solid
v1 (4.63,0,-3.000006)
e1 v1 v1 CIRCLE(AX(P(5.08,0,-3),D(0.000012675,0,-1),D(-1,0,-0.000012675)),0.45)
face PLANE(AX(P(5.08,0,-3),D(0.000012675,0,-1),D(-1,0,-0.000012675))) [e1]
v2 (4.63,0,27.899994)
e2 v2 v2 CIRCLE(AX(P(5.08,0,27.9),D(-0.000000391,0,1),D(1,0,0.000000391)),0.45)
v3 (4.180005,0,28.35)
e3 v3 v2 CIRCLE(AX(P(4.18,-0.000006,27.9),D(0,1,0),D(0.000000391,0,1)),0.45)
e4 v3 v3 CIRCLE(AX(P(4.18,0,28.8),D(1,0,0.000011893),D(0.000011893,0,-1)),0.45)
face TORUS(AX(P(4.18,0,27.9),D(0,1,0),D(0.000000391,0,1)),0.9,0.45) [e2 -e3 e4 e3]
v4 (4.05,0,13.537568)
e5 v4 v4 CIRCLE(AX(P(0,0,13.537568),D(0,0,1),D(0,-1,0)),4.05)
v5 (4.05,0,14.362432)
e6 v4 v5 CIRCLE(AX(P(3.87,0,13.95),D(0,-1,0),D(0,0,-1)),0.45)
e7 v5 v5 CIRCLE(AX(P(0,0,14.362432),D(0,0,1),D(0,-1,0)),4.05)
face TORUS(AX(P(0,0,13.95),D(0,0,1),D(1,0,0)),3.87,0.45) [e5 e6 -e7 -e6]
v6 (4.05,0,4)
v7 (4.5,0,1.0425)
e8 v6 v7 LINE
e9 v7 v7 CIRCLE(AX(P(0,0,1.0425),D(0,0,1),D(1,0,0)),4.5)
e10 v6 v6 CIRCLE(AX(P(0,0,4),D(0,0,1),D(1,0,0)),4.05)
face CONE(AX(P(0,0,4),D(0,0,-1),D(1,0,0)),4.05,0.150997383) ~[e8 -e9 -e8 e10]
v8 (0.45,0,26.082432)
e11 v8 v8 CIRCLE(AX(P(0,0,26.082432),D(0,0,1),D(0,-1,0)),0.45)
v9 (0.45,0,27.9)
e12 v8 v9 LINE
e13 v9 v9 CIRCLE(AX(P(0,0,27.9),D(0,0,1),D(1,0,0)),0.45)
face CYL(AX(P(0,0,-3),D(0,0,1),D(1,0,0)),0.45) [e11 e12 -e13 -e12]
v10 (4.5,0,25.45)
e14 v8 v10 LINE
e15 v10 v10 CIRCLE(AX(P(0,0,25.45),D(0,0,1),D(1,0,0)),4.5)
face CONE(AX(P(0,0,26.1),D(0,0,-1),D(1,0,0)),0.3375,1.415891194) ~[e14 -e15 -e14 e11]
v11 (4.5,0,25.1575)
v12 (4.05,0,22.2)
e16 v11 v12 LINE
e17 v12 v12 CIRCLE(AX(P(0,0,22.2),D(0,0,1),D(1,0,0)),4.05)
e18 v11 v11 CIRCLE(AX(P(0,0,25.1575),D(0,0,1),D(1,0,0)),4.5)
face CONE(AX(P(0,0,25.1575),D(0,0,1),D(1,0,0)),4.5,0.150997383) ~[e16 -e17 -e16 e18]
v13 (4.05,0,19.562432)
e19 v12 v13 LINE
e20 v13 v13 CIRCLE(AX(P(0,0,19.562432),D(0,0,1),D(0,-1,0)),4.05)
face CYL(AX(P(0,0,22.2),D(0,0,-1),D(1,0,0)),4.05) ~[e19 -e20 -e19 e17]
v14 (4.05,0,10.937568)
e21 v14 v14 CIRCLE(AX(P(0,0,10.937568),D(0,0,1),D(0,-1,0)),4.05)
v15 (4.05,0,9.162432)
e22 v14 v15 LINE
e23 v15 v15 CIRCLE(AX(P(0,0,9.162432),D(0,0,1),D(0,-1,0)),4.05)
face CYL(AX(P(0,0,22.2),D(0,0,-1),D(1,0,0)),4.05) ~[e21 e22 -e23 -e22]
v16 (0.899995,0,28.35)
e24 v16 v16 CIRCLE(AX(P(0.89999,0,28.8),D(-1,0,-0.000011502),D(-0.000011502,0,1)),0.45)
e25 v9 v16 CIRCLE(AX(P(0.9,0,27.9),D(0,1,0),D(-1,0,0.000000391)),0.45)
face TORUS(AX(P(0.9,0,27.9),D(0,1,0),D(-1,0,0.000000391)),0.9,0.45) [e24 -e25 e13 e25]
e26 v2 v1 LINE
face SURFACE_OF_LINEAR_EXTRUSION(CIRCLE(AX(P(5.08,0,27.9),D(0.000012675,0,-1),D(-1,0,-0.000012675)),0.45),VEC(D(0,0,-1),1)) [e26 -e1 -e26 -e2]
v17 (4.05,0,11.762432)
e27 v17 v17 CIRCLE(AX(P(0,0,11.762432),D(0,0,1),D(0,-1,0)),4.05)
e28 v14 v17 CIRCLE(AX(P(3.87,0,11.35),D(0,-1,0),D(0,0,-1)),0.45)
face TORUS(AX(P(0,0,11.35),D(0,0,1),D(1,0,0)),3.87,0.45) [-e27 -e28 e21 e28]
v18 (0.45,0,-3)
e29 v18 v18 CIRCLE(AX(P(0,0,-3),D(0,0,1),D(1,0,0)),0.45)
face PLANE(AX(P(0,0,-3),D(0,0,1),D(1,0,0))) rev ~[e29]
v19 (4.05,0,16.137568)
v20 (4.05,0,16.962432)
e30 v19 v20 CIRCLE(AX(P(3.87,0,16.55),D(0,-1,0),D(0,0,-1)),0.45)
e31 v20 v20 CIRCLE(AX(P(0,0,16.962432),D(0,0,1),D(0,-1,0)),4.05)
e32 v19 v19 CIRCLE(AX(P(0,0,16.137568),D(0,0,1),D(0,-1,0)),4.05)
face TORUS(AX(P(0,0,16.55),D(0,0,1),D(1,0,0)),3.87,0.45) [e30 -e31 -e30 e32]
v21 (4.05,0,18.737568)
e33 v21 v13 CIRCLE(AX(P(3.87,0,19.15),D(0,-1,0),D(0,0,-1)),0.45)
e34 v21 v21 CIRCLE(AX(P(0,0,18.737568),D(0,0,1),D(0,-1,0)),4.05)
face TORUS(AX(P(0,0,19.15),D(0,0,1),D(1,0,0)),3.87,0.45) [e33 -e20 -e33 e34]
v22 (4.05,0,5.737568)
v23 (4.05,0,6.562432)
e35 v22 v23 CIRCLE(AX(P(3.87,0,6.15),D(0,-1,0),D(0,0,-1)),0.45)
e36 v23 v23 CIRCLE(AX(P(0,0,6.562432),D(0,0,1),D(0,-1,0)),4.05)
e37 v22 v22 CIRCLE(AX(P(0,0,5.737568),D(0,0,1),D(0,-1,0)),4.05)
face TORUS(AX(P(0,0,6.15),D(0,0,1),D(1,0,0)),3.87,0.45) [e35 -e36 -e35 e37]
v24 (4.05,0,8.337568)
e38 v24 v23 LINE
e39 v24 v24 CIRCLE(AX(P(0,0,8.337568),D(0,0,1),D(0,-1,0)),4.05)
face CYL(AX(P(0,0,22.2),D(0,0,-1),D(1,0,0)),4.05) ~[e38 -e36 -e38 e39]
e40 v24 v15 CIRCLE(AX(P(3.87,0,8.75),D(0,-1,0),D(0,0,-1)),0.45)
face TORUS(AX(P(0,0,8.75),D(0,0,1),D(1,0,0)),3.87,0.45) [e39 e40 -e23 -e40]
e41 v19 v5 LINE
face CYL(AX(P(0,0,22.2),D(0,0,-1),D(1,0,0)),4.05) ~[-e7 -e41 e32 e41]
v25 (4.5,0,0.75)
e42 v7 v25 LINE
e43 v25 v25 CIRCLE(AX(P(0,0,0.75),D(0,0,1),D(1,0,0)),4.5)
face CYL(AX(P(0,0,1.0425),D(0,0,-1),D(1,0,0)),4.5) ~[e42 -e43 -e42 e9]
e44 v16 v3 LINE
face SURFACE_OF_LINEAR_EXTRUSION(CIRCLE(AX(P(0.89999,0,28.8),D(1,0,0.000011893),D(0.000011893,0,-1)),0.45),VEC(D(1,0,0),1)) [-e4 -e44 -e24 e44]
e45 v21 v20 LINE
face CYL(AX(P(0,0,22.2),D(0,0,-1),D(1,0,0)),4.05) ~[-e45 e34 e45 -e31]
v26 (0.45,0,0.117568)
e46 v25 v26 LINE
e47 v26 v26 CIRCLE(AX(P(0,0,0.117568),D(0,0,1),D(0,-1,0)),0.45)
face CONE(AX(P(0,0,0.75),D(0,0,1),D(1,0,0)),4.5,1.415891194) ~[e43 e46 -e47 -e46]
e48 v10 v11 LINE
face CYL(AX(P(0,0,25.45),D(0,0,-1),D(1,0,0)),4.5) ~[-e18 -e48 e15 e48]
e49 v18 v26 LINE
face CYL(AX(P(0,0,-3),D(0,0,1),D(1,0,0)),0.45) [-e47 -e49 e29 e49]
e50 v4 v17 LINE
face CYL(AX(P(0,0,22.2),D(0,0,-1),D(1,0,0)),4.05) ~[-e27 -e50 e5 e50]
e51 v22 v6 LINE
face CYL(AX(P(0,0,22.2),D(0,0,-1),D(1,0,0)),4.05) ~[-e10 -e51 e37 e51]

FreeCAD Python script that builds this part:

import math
import FreeCAD as App
import Part
import Sketcher

doc = App.newDocument("Part")
body = doc.addObject("PartDesign::Body", "Body")

# Sketch on XZ plane
sketch1 = body.newObject("Sketcher::SketchObject", "Sketch")
sketch1.AttachmentSupport = (doc.getObject("XZ_Plane"), [""])
sketch1.MapMode = "FlatFace"
sketch1.addGeometry(Part.LineSegment(App.Vector(0, 26.1, 0), App.Vector(0, 0.1, 0)), False)
sketch1.addGeometry(Part.LineSegment(App.Vector(0, 0.1, 0), App.Vector(0.34, 0.1, 0)), False)
sketch1.addGeometry(Part.LineSegment(App.Vector(0.34, 0.1, 0), App.Vector(4.5, 0.75, 0)), False)
sketch1.addGeometry(Part.LineSegment(App.Vector(4.5, 0.75, 0), App.Vector(4.5, 1.04, 0)), False)
sketch1.addGeometry(Part.LineSegment(App.Vector(4.5, 1.04, 0), App.Vector(4.05, 4, 0)), False)
sketch1.addGeometry(Part.LineSegment(App.Vector(4.05, 4, 0), App.Vector(4.05, 22.2, 0)), False)
sketch1.addGeometry(Part.LineSegment(App.Vector(4.05, 22.2, 0), App.Vector(4.5, 25.16, 0)), False)
sketch1.addGeometry(Part.LineSegment(App.Vector(4.5, 25.16, 0), App.Vector(4.5, 25.45, 0)), False)
sketch1.addGeometry(Part.LineSegment(App.Vector(4.5, 25.45, 0), App.Vector(0.34, 26.1, 0)), False)
sketch1.addGeometry(Part.LineSegment(App.Vector(0.34, 26.1, 0), App.Vector(0, 26.1, 0)), False)
sketch1.addConstraint(Sketcher.Constraint("Coincident", 0, 2, 1, 1))
sketch1.addConstraint(Sketcher.Constraint("Coincident", 1, 2, 2, 1))
sketch1.addConstraint(Sketcher.Constraint("Coincident", 2, 2, 3, 1))
sketch1.addConstraint(Sketcher.Constraint("Coincident", 3, 2, 4, 1))
sketch1.addConstraint(Sketcher.Constraint("Coincident", 4, 2, 5, 1))
sketch1.addConstraint(Sketcher.Constraint("Coincident", 5, 2, 6, 1))
sketch1.addConstraint(Sketcher.Constraint("Coincident", 6, 2, 7, 1))
sketch1.addConstraint(Sketcher.Constraint("Coincident", 7, 2, 8, 1))
sketch1.addConstraint(Sketcher.Constraint("Coincident", 8, 2, 9, 1))
sketch1.addConstraint(Sketcher.Constraint("Coincident", 9, 2, 0, 1))
sketch1.addConstraint(Sketcher.Constraint("Vertical", 0))
sketch1.addConstraint(Sketcher.Constraint("Horizontal", 1))
sketch1.addConstraint(Sketcher.Constraint("Vertical", 3))
sketch1.addConstraint(Sketcher.Constraint("Vertical", 5))
sketch1.addConstraint(Sketcher.Constraint("Vertical", 7))
sketch1.addConstraint(Sketcher.Constraint("Horizontal", 9))
sketch1.addConstraint(Sketcher.Constraint("PointOnObject", 0, 2, -2))
sketch1.addConstraint(Sketcher.Constraint("Vertical", 3, 2, 6, 2))
sketch1.addConstraint(Sketcher.Constraint("Vertical", 1, 2, 8, 2))
sketch1.addConstraint(Sketcher.Constraint("Equal", 3, 7))
sketch1.addConstraint(Sketcher.Constraint("Equal", 4, 6))
sketch1.addConstraint(Sketcher.Constraint("Equal", 2, 8))
sketch1.addConstraint(Sketcher.Constraint("DistanceY", 0, 2, 0, 1, 26.0))
sketch1.addConstraint(Sketcher.Constraint("DistanceY", 5, 1, 5, 2, 18.2))
sketch1.addConstraint(Sketcher.Constraint("DistanceY", -1, 1, 4, 2, 4.0))
sketch1.addConstraint(Sketcher.Constraint("DistanceX", -1, 1, 2, 2, 4.5))
sketch1.addConstraint(Sketcher.Constraint("DistanceY", 2, 2, 7, 2, 24.7))
sketch1.addConstraint(Sketcher.Constraint("DistanceX", -1, 1, 4, 2, 4.05))
sketch1.addConstraint(Sketcher.Constraint("DistanceX", 1, 1, 1, 2, 0.3375))
sketch1.addConstraint(Sketcher.Constraint("DistanceY", 3, 1, 3, 2, 0.2925))
revolution = body.newObject("PartDesign::Revolution", "Revolution")
revolution.Profile = sketch1
revolution.ReferenceAxis = (sketch1, ["V_Axis"])
revolution.Angle = 360
body2 = doc.addObject("PartDesign::Body", "Body001")

# Sketch on XY plane
sketch2 = body2.newObject("Sketcher::SketchObject", "Sketch001")
sketch2.AttachmentSupport = (doc.getObject("XY_Plane001"), [""])
sketch2.MapMode = "FlatFace"
sketch2.AttachmentOffset = App.Placement(App.Vector(0, 0, -2), App.Rotation())
sketch2.addGeometry(Part.Circle(App.Vector(0, 0, 0), App.Vector(0, 0, 1), 0.45), False)
sketch2.addConstraint(Sketcher.Constraint("Coincident", 0, 3, -1, 1))
sketch2.addConstraint(Sketcher.Constraint("Diameter", 0, 0.9))

# Sketch on XZ plane
sketch3 = body2.newObject("Sketcher::SketchObject", "Sketch002")
sketch3.AttachmentSupport = (doc.getObject("XZ_Plane001"), [""])
sketch3.MapMode = "FlatFace"
sketch3.addGeometry(Part.LineSegment(App.Vector(0, -3, 0), App.Vector(0, 27.9, 0)), False)
sketch3.addGeometry(Part.ArcOfCircle(Part.Circle(App.Vector(0.9, 27.9, 0), App.Vector(0, 0, 1), 0.9), math.radians(90), math.radians(180)), False)
sketch3.addGeometry(Part.LineSegment(App.Vector(0.9, 28.8, 0), App.Vector(4.2, 28.8, 0)), False)
sketch3.addGeometry(Part.ArcOfCircle(Part.Circle(App.Vector(4.2, 27.9, 0), App.Vector(0, 0, 1), 0.9), math.radians(0), math.radians(90)), False)
sketch3.addGeometry(Part.LineSegment(App.Vector(5.1, 27.9, 0), App.Vector(5.1, -3, 0)), False)
sketch3.addConstraint(Sketcher.Constraint("Tangent", 0, 2, 1, 2))
sketch3.addConstraint(Sketcher.Constraint("Coincident", 1, 1, 2, 1))
sketch3.addConstraint(Sketcher.Constraint("Tangent", 2, 2, 3, 2))
sketch3.addConstraint(Sketcher.Constraint("Tangent", 3, 1, 4, 1))
sketch3.addConstraint(Sketcher.Constraint("Vertical", 0))
sketch3.addConstraint(Sketcher.Constraint("Horizontal", 2))
sketch3.addConstraint(Sketcher.Constraint("Vertical", 4))
sketch3.addConstraint(Sketcher.Constraint("Equal", 1, 3))
sketch3.addConstraint(Sketcher.Constraint("PointOnObject", 0, 1, -2))
sketch3.addConstraint(Sketcher.Constraint("Horizontal", 0, 1, 4, 2))
sketch3.addConstraint(Sketcher.Constraint("Radius", 1, 0.9))
sketch3.addConstraint(Sketcher.Constraint("DistanceY", 0, 1, 0, 2, 30.9))
sketch3.addConstraint(Sketcher.Constraint("DistanceY", 0, 1, -1, 1, 3.0))
sketch3.addConstraint(Sketcher.Constraint("DistanceX", -1, 1, 3, 3, 4.18))
sketch3.addConstraint(Sketcher.Constraint("DistanceX", 2, 1, 2, 2, 3.28001))
doc.recompute()

additivepipe = body2.newObject("PartDesign::AdditivePipe", "AdditivePipe")
additivepipe.Profile = sketch2
additivepipe.Spine = (sketch3, ["Edge1", "Edge2", "Edge3", "Edge4", "Edge5"])
body3 = doc.addObject("PartDesign::Body", "Body002")

# Sketch on XZ plane
sketch4 = body3.newObject("Sketcher::SketchObject", "Sketch003")
sketch4.AttachmentSupport = (doc.getObject("XZ_Plane002"), [""])
sketch4.MapMode = "FlatFace"
sketch4.addGeometry(Part.LineSegment(App.Vector(3.6, 21.3, 0), App.Vector(3.6, 4, 0)), False)
sketch4.addGeometry(Part.LineSegment(App.Vector(3.6, 4, 0), App.Vector(3.87, 4, 0)), False)
sketch4.addGeometry(Part.LineSegment(App.Vector(3.87, 4, 0), App.Vector(3.87, 5.7, 0)), False)
sketch4.addGeometry(Part.ArcOfCircle(Part.Circle(App.Vector(3.87, 6.15, 0), App.Vector(0, 0, 1), 0.45), math.radians(-90), math.radians(90)), False)
sketch4.addGeometry(Part.LineSegment(App.Vector(3.87, 6.6, 0), App.Vector(3.87, 8.3, 0)), False)
sketch4.addGeometry(Part.ArcOfCircle(Part.Circle(App.Vector(3.87, 8.75, 0), App.Vector(0, 0, 1), 0.45), math.radians(-90), math.radians(90)), False)
sketch4.addGeometry(Part.LineSegment(App.Vector(3.87, 9.2, 0), App.Vector(3.87, 10.9, 0)), False)
sketch4.addGeometry(Part.ArcOfCircle(Part.Circle(App.Vector(3.87, 11.35, 0), App.Vector(0, 0, 1), 0.45), math.radians(-90), math.radians(90)), False)
sketch4.addGeometry(Part.LineSegment(App.Vector(3.87, 11.8, 0), App.Vector(3.87, 13.5, 0)), False)
sketch4.addGeometry(Part.ArcOfCircle(Part.Circle(App.Vector(3.87, 13.95, 0), App.Vector(0, 0, 1), 0.45), math.radians(-90), math.radians(90)), False)
sketch4.addGeometry(Part.LineSegment(App.Vector(3.87, 14.4, 0), App.Vector(3.87, 16.1, 0)), False)
sketch4.addGeometry(Part.ArcOfCircle(Part.Circle(App.Vector(3.87, 16.55, 0), App.Vector(0, 0, 1), 0.45), math.radians(-90), math.radians(90)), False)
sketch4.addGeometry(Part.LineSegment(App.Vector(3.87, 17, 0), App.Vector(3.87, 18.7, 0)), False)
sketch4.addGeometry(Part.ArcOfCircle(Part.Circle(App.Vector(3.87, 19.15, 0), App.Vector(0, 0, 1), 0.45), math.radians(-90), math.radians(90)), False)
sketch4.addGeometry(Part.LineSegment(App.Vector(3.87, 19.6, 0), App.Vector(3.87, 21.3, 0)), False)
sketch4.addGeometry(Part.LineSegment(App.Vector(3.87, 21.3, 0), App.Vector(3.6, 21.3, 0)), False)
sketch4.addConstraint(Sketcher.Constraint("Coincident", 0, 2, 1, 1))
sketch4.addConstraint(Sketcher.Constraint("Coincident", 1, 2, 2, 1))
sketch4.addConstraint(Sketcher.Constraint("Coincident", 2, 2, 3, 1))
sketch4.addConstraint(Sketcher.Constraint("Coincident", 3, 2, 4, 1))
sketch4.addConstraint(Sketcher.Constraint("Coincident", 4, 2, 5, 1))
sketch4.addConstraint(Sketcher.Constraint("Coincident", 5, 2, 6, 1))
sketch4.addConstraint(Sketcher.Constraint("Coincident", 6, 2, 7, 1))
sketch4.addConstraint(Sketcher.Constraint("Coincident", 7, 2, 8, 1))
sketch4.addConstraint(Sketcher.Constraint("Coincident", 8, 2, 9, 1))
sketch4.addConstraint(Sketcher.Constraint("Coincident", 9, 2, 10, 1))
sketch4.addConstraint(Sketcher.Constraint("Coincident", 10, 2, 11, 1))
sketch4.addConstraint(Sketcher.Constraint("Coincident", 11, 2, 12, 1))
sketch4.addConstraint(Sketcher.Constraint("Coincident", 12, 2, 13, 1))
sketch4.addConstraint(Sketcher.Constraint("Coincident", 13, 2, 14, 1))
sketch4.addConstraint(Sketcher.Constraint("Coincident", 14, 2, 15, 1))
sketch4.addConstraint(Sketcher.Constraint("Coincident", 15, 2, 0, 1))
sketch4.addConstraint(Sketcher.Constraint("Vertical", 0))
sketch4.addConstraint(Sketcher.Constraint("Horizontal", 1))
sketch4.addConstraint(Sketcher.Constraint("Vertical", 2))
sketch4.addConstraint(Sketcher.Constraint("Vertical", 4))
sketch4.addConstraint(Sketcher.Constraint("Vertical", 6))
sketch4.addConstraint(Sketcher.Constraint("Vertical", 8))
sketch4.addConstraint(Sketcher.Constraint("Vertical", 10))
sketch4.addConstraint(Sketcher.Constraint("Vertical", 12))
sketch4.addConstraint(Sketcher.Constraint("Vertical", 14))
sketch4.addConstraint(Sketcher.Constraint("Horizontal", 15))
sketch4.addConstraint(Sketcher.Constraint("Equal", 3, 5))
sketch4.addConstraint(Sketcher.Constraint("Equal", 5, 7))
sketch4.addConstraint(Sketcher.Constraint("Equal", 7, 9))
sketch4.addConstraint(Sketcher.Constraint("Equal", 9, 11))
sketch4.addConstraint(Sketcher.Constraint("Equal", 11, 13))
sketch4.addConstraint(Sketcher.Constraint("Vertical", 3, 3, 5, 3))
sketch4.addConstraint(Sketcher.Constraint("Vertical", 5, 3, 7, 3))
sketch4.addConstraint(Sketcher.Constraint("Vertical", 7, 3, 9, 3))
sketch4.addConstraint(Sketcher.Constraint("Vertical", 9, 3, 11, 3))
sketch4.addConstraint(Sketcher.Constraint("Vertical", 11, 3, 13, 3))
sketch4.addConstraint(Sketcher.Constraint("Vertical", 13, 3, 1, 2))
sketch4.addConstraint(Sketcher.Constraint("Vertical", 2, 2, 3, 2))
sketch4.addConstraint(Sketcher.Constraint("Vertical", 4, 2, 5, 2))
sketch4.addConstraint(Sketcher.Constraint("Vertical", 6, 2, 7, 2))
sketch4.addConstraint(Sketcher.Constraint("Vertical", 8, 2, 9, 2))
sketch4.addConstraint(Sketcher.Constraint("Vertical", 10, 2, 11, 2))
sketch4.addConstraint(Sketcher.Constraint("Vertical", 12, 2, 13, 2))
sketch4.addConstraint(Sketcher.Constraint("Equal", 2, 4))
sketch4.addConstraint(Sketcher.Constraint("Equal", 4, 6))
sketch4.addConstraint(Sketcher.Constraint("Equal", 6, 8))
sketch4.addConstraint(Sketcher.Constraint("Equal", 8, 10))
sketch4.addConstraint(Sketcher.Constraint("Equal", 10, 12))
sketch4.addConstraint(Sketcher.Constraint("Equal", 12, 14))
sketch4.addConstraint(Sketcher.Constraint("Radius", 3, 0.45))
sketch4.addConstraint(Sketcher.Constraint("DistanceY", 0, 2, 0, 1, 17.3))
sketch4.addConstraint(Sketcher.Constraint("DistanceY", -1, 1, 0, 2, 4.0))
sketch4.addConstraint(Sketcher.Constraint("DistanceX", 1, 1, 1, 2, 0.27))
sketch4.addConstraint(Sketcher.Constraint("DistanceX", -1, 1, 0, 2, 3.6))
revolution2 = body3.newObject("PartDesign::Revolution", "Revolution001")
revolution2.Profile = sketch4
revolution2.ReferenceAxis = (sketch4, ["V_Axis"])
revolution2.Angle = 360
doc.recompute()

boolean = body3.newObject("PartDesign::Boolean", "Boolean")
boolean.Type = "Fuse"
boolean.addObjects([body])
doc.recompute()

boolean2 = body3.newObject("PartDesign::Boolean", "Boolean001")
boolean2.Type = "Fuse"
boolean2.addObjects([body2])

doc.recompute()
